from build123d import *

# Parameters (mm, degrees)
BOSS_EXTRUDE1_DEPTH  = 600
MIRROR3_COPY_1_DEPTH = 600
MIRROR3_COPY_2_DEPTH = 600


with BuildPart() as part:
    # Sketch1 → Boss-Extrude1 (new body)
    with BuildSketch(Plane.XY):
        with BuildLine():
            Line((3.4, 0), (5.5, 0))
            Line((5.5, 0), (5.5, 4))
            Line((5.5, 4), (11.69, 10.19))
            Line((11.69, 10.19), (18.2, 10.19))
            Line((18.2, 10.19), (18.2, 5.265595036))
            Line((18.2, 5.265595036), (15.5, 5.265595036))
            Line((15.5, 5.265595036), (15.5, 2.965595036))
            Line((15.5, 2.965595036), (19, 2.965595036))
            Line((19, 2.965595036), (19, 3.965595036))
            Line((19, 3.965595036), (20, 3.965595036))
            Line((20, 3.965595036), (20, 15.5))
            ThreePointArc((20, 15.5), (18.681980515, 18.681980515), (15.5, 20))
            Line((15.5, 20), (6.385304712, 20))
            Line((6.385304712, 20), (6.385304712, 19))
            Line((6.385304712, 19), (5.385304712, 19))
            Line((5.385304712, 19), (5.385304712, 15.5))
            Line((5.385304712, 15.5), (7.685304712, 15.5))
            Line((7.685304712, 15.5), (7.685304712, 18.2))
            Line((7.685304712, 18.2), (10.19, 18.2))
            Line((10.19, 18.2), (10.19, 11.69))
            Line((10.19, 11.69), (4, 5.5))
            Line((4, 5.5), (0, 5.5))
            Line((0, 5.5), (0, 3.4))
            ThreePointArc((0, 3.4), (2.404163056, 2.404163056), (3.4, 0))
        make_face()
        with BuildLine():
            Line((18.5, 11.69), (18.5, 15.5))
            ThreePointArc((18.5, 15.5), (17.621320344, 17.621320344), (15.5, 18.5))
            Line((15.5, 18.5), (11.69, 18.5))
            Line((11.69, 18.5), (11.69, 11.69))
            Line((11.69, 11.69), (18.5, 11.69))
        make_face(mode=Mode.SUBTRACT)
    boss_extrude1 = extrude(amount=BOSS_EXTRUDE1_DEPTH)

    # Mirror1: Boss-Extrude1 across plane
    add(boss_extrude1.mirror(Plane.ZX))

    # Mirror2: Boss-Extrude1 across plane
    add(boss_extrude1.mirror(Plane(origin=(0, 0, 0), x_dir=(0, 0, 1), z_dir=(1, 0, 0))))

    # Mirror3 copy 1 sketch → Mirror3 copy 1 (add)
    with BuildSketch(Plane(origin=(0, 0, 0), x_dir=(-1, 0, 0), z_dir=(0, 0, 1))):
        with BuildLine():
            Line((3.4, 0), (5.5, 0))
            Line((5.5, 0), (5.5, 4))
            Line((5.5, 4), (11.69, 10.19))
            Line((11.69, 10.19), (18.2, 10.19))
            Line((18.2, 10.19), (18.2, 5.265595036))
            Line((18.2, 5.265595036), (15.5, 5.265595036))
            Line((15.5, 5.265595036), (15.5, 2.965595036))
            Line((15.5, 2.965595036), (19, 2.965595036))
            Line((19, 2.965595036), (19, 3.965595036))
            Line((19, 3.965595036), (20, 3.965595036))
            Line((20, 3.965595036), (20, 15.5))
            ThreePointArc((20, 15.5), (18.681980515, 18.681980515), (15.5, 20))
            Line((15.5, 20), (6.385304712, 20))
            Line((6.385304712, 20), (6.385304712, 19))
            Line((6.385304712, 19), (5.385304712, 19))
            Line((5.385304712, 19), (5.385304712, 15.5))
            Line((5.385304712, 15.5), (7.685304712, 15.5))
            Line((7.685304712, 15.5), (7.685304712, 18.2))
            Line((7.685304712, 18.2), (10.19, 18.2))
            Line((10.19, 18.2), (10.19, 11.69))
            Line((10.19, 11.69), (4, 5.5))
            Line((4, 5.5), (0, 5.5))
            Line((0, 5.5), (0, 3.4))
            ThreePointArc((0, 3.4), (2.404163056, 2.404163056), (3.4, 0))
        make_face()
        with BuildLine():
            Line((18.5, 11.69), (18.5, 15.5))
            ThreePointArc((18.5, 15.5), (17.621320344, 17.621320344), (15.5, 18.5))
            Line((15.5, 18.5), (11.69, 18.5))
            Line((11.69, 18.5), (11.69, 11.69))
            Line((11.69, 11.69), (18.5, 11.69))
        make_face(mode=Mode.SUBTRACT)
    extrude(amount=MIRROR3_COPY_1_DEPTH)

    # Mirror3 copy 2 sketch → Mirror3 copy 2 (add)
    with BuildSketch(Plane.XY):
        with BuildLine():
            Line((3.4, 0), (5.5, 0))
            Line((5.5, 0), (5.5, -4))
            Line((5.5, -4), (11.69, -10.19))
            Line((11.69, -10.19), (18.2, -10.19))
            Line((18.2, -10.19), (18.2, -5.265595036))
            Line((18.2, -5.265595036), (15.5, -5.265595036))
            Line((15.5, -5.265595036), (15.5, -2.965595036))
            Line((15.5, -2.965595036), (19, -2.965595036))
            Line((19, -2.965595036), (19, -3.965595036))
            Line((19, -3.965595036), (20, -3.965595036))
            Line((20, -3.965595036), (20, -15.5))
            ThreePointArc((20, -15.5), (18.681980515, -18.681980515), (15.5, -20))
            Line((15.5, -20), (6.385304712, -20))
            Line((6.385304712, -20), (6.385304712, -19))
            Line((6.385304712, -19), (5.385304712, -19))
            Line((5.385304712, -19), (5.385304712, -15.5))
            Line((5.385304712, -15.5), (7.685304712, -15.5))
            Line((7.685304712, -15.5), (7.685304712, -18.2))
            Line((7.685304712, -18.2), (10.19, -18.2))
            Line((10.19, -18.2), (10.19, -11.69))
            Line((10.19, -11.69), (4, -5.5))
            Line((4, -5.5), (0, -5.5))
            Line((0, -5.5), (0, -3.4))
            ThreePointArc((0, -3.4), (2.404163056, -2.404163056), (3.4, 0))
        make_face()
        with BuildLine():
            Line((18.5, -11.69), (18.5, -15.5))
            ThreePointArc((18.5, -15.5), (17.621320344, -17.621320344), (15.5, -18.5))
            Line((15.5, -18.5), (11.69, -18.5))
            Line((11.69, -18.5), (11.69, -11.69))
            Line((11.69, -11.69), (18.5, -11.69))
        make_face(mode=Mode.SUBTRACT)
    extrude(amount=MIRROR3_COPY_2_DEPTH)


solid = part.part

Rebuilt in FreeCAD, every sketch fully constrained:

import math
import FreeCAD as App
import Part
import Sketcher

V = App.Vector
Q = App.Units.Quantity

doc = App.newDocument("Part")
body = doc.addObject("PartDesign::Body", "Body")

# Sketch on XY plane
sketch1 = body.newObject("Sketcher::SketchObject", "Sketch")
sketch1.AttachmentSupport = (doc.getObject("XY_Plane"), [""])
sketch1.MapMode = "FlatFace"
sketch1.addGeometry([
    Part.LineSegment(V(3.4, 0, 0), V(5.5, 0, 0)),  # 0
    Part.LineSegment(V(5.5, 0, 0), V(5.5, 4, 0)),  # 1
    Part.LineSegment(V(5.5, 4, 0), V(11.7, 10.2, 0)),  # 2
    Part.LineSegment(V(11.7, 10.2, 0), V(18.2, 10.2, 0)),  # 3
    Part.LineSegment(V(18.2, 10.2, 0), V(18.2, 5.3, 0)),  # 4
    Part.LineSegment(V(18.2, 5.3, 0), V(15.5, 5.3, 0)),  # 5
    Part.LineSegment(V(15.5, 5.3, 0), V(15.5, 3, 0)),  # 6
    Part.LineSegment(V(15.5, 3, 0), V(19, 3, 0)),  # 7
    Part.LineSegment(V(19, 3, 0), V(19, 4, 0)),  # 8
    Part.LineSegment(V(19, 4, 0), V(20, 4, 0)),  # 9
    Part.LineSegment(V(20, 4, 0), V(20, 15.5, 0)),  # 10
    Part.ArcOfCircle(Part.Circle(V(15.5, 15.5, 0), V(0, 0, 1), 4.5), math.radians(0), math.radians(90)),  # 11
    Part.LineSegment(V(15.5, 20, 0), V(6.4, 20, 0)),  # 12
    Part.LineSegment(V(6.4, 20, 0), V(6.4, 19, 0)),  # 13
    Part.LineSegment(V(6.4, 19, 0), V(5.4, 19, 0)),  # 14
    Part.LineSegment(V(5.4, 19, 0), V(5.4, 15.5, 0)),  # 15
    Part.LineSegment(V(5.4, 15.5, 0), V(7.7, 15.5, 0)),  # 16
    Part.LineSegment(V(7.7, 15.5, 0), V(7.7, 18.2, 0)),  # 17
    Part.LineSegment(V(7.7, 18.2, 0), V(10.2, 18.2, 0)),  # 18
    Part.LineSegment(V(10.2, 18.2, 0), V(10.2, 11.7, 0)),  # 19
    Part.LineSegment(V(10.2, 11.7, 0), V(4, 5.5, 0)),  # 20
    Part.LineSegment(V(4, 5.5, 0), V(0, 5.5, 0)),  # 21
    Part.LineSegment(V(0, 5.5, 0), V(0, 3.4, 0)),  # 22
    Part.ArcOfCircle(Part.Circle(V(0, 0, 0), V(0, 0, 1), 3.4), math.radians(0), math.radians(90)),  # 23
    Part.LineSegment(V(18.5, 15.5, 0), V(18.5, 11.7, 0)),  # 24
    Part.LineSegment(V(18.5, 11.7, 0), V(11.7, 11.7, 0)),  # 25
    Part.LineSegment(V(11.7, 11.7, 0), V(11.7, 18.5, 0)),  # 26
    Part.LineSegment(V(11.7, 18.5, 0), V(15.5, 18.5, 0)),  # 27
    Part.ArcOfCircle(Part.Circle(V(15.5, 15.5, 0), V(0, 0, 1), 3), math.radians(0), math.radians(90)),  # 28
], False)
sketch1.addConstraint([
    Sketcher.Constraint("Coincident", 0, 2, 1, 1),
    Sketcher.Constraint("Coincident", 1, 2, 2, 1),
    Sketcher.Constraint("Coincident", 2, 2, 3, 1),
    Sketcher.Constraint("Coincident", 3, 2, 4, 1),
    Sketcher.Constraint("Coincident", 4, 2, 5, 1),
    Sketcher.Constraint("Coincident", 5, 2, 6, 1),
    Sketcher.Constraint("Coincident", 6, 2, 7, 1),
    Sketcher.Constraint("Coincident", 7, 2, 8, 1),
    Sketcher.Constraint("Coincident", 8, 2, 9, 1),
    Sketcher.Constraint("Coincident", 9, 2, 10, 1),
    Sketcher.Constraint("Tangent", 10, 2, 11, 1),
    Sketcher.Constraint("Tangent", 11, 2, 12, 1),
    Sketcher.Constraint("Coincident", 12, 2, 13, 1),
    Sketcher.Constraint("Coincident", 13, 2, 14, 1),
    Sketcher.Constraint("Coincident", 14, 2, 15, 1),
    Sketcher.Constraint("Coincident", 15, 2, 16, 1),
    Sketcher.Constraint("Coincident", 16, 2, 17, 1),
    Sketcher.Constraint("Coincident", 17, 2, 18, 1),
    Sketcher.Constraint("Coincident", 18, 2, 19, 1),
    Sketcher.Constraint("Coincident", 19, 2, 20, 1),
    Sketcher.Constraint("Coincident", 20, 2, 21, 1),
    Sketcher.Constraint("Coincident", 21, 2, 22, 1),
    Sketcher.Constraint("Coincident", 22, 2, 23, 2),
    Sketcher.Constraint("Coincident", 23, 1, 0, 1),
    Sketcher.Constraint("Coincident", 24, 2, 25, 1),
    Sketcher.Constraint("Coincident", 25, 2, 26, 1),
    Sketcher.Constraint("Coincident", 26, 2, 27, 1),
    Sketcher.Constraint("Tangent", 27, 2, 28, 2),
    Sketcher.Constraint("Tangent", 28, 1, 24, 1),
    Sketcher.Constraint("Horizontal", 0),
    Sketcher.Constraint("Vertical", 1),
    Sketcher.Constraint("Horizontal", 3),
    Sketcher.Constraint("Vertical", 4),
    Sketcher.Constraint("Horizontal", 5),
    Sketcher.Constraint("Vertical", 6),
    Sketcher.Constraint("Horizontal", 7),
    Sketcher.Constraint("Vertical", 8),
    Sketcher.Constraint("Horizontal", 9),
    Sketcher.Constraint("Vertical", 10),
    Sketcher.Constraint("Horizontal", 12),
    Sketcher.Constraint("Vertical", 13),
    Sketcher.Constraint("Horizontal", 14),
    Sketcher.Constraint("Vertical", 15),
    Sketcher.Constraint("Horizontal", 16),
    Sketcher.Constraint("Vertical", 17),
    Sketcher.Constraint("Horizontal", 18),
    Sketcher.Constraint("Vertical", 19),
    Sketcher.Constraint("Horizontal", 21),
    Sketcher.Constraint("Vertical", 22),
    Sketcher.Constraint("Vertical", 24),
    Sketcher.Constraint("Horizontal", 25),
    Sketcher.Constraint("Vertical", 26),
    Sketcher.Constraint("Horizontal", 27),
    Sketcher.Constraint("Coincident", 23, 3, -1, 1),
    Sketcher.Constraint("Coincident", 28, 3, 11, 3),
    Sketcher.Constraint("PointOnObject", 0, 2, -1),
    Sketcher.Constraint("PointOnObject", 21, 2, -2),
    Sketcher.Constraint("Parallel", 2, 20),
    Sketcher.Constraint("Horizontal", 10, 2, 15, 2),
    Sketcher.Constraint("Horizontal", 19, 2, 24, 2),
    Sketcher.Constraint("Vertical", 28, 3, 5, 2),
    Sketcher.Constraint("Vertical", 2, 2, 25, 2),
    Sketcher.Constraint("Equal", 9, 14),
    Sketcher.Constraint("Equal", 21, 1),
    Sketcher.Constraint("Equal", 16, 6),
    Sketcher.Constraint("Equal", 14, 8),
    Sketcher.Constraint("Equal", 8, 13),
    Sketcher.Constraint("Equal", 5, 17),
    Sketcher.Constraint("Equal", 3, 19),
    Sketcher.Constraint("Equal", 0, 22),
    Sketcher.Constraint("Equal", 2, 20),
    Sketcher.Constraint("Radius", 28, Q("3 mm")),
    Sketcher.Constraint("Radius", 11, Q("4.5 mm")),
    Sketcher.Constraint("Radius", 23, Q("3.4 mm")),
    Sketcher.Constraint("DistanceX", 9, 1, 9, 2, Q("1 mm")),
    Sketcher.Constraint("DistanceX", 21, 2, 21, 1, Q("4 mm")),
    Sketcher.Constraint("Angle", 2, Q("45 deg")),
    Sketcher.Constraint("DistanceX", 0, 1, 0, 2, Q("2.1 mm")),
    Sketcher.Constraint("DistanceX", 5, 2, 5, 1, Q("2.7 mm")),
    Sketcher.Constraint("DistanceX", 16, 1, 16, 2, Q("2.3 mm")),
    Sketcher.Constraint("DistanceX", -1, 1, 7, 2, Q("19 mm")),
    Sketcher.Constraint("DistanceX", 3, 1, 3, 2, Q("6.51 mm")),
    Sketcher.Constraint("DistanceX", 12, 2, 12, 1, Q("9.114695 mm")),
    Sketcher.Constraint("DistanceY", 4, 2, 4, 1, Q("4.924405 mm")),
])
pad1 = body.newObject("PartDesign::Pad", "Pad")
pad1.Profile = sketch1
pad1.Length = 600
doc.recompute()

mirrored = body.newObject("PartDesign::Mirrored", "Mirrored")
mirrored.Originals = [pad1]
mirrored.MirrorPlane = (doc.getObject("XZ_Plane"), [""])
body.Tip = mirrored
doc.recompute()

mirrored2 = body.newObject("PartDesign::Mirrored", "Mirrored001")
mirrored2.Originals = [pad1]
mirrored2.MirrorPlane = (doc.getObject("YZ_Plane"), [""])
body.Tip = mirrored2

# Sketch on XY plane
sketch2 = body.newObject("Sketcher::SketchObject", "Sketch001")
sketch2.AttachmentSupport = (doc.getObject("XY_Plane"), [""])
sketch2.MapMode = "FlatFace"
sketch2.addGeometry([
    Part.LineSegment(V(-3.4, 0, 0), V(-5.5, 0, 0)),  # 0
    Part.LineSegment(V(-5.5, 0, 0), V(-5.5, -4, 0)),  # 1
    Part.LineSegment(V(-5.5, -4, 0), V(-11.7, -10.2, 0)),  # 2
    Part.LineSegment(V(-11.7, -10.2, 0), V(-18.2, -10.2, 0)),  # 3
    Part.LineSegment(V(-18.2, -10.2, 0), V(-18.2, -5.3, 0)),  # 4
    Part.LineSegment(V(-18.2, -5.3, 0), V(-15.5, -5.3, 0)),  # 5
    Part.LineSegment(V(-15.5, -5.3, 0), V(-15.5, -3, 0)),  # 6
    Part.LineSegment(V(-15.5, -3, 0), V(-19, -3, 0)),  # 7
    Part.LineSegment(V(-19, -3, 0), V(-19, -4, 0)),  # 8
    Part.LineSegment(V(-19, -4, 0), V(-20, -4, 0)),  # 9
    Part.LineSegment(V(-20, -4, 0), V(-20, -15.5, 0)),  # 10
    Part.ArcOfCircle(Part.Circle(V(-15.5, -15.5, 0), V(0, 0, 1), 4.5), math.radians(-180), math.radians(-90)),  # 11
    Part.LineSegment(V(-15.5, -20, 0), V(-6.4, -20, 0)),  # 12
    Part.LineSegment(V(-6.4, -20, 0), V(-6.4, -19, 0)),  # 13
    Part.LineSegment(V(-6.4, -19, 0), V(-5.4, -19, 0)),  # 14
    Part.LineSegment(V(-5.4, -19, 0), V(-5.4, -15.5, 0)),  # 15
    Part.LineSegment(V(-5.4, -15.5, 0), V(-7.7, -15.5, 0)),  # 16
    Part.LineSegment(V(-7.7, -15.5, 0), V(-7.7, -18.2, 0)),  # 17
    Part.LineSegment(V(-7.7, -18.2, 0), V(-10.2, -18.2, 0)),  # 18
    Part.LineSegment(V(-10.2, -18.2, 0), V(-10.2, -11.7, 0)),  # 19
    Part.LineSegment(V(-10.2, -11.7, 0), V(-4, -5.5, 0)),  # 20
    Part.LineSegment(V(-4, -5.5, 0), V(0, -5.5, 0)),  # 21
    Part.LineSegment(V(0, -5.5, 0), V(0, -3.4, 0)),  # 22
    Part.ArcOfCircle(Part.Circle(V(0, 0, 0), V(0, 0, 1), 3.4), math.radians(180), math.radians(270)),  # 23
    Part.LineSegment(V(-18.5, -15.5, 0), V(-18.5, -11.7, 0)),  # 24
    Part.LineSegment(V(-18.5, -11.7, 0), V(-11.7, -11.7, 0)),  # 25
    Part.LineSegment(V(-11.7, -11.7, 0), V(-11.7, -18.5, 0)),  # 26
    Part.LineSegment(V(-11.7, -18.5, 0), V(-15.5, -18.5, 0)),  # 27
    Part.ArcOfCircle(Part.Circle(V(-15.5, -15.5, 0), V(0, 0, 1), 3), math.radians(180), math.radians(270)),  # 28
], False)
sketch2.addConstraint([
    Sketcher.Constraint("Coincident", 0, 2, 1, 1),
    Sketcher.Constraint("Coincident", 1, 2, 2, 1),
    Sketcher.Constraint("Coincident", 2, 2, 3, 1),
    Sketcher.Constraint("Coincident", 3, 2, 4, 1),
    Sketcher.Constraint("Coincident", 4, 2, 5, 1),
    Sketcher.Constraint("Coincident", 5, 2, 6, 1),
    Sketcher.Constraint("Coincident", 6, 2, 7, 1),
    Sketcher.Constraint("Coincident", 7, 2, 8, 1),
    Sketcher.Constraint("Coincident", 8, 2, 9, 1),
    Sketcher.Constraint("Coincident", 9, 2, 10, 1),
    Sketcher.Constraint("Tangent", 10, 2, 11, 1),
    Sketcher.Constraint("Tangent", 11, 2, 12, 1),
    Sketcher.Constraint("Coincident", 12, 2, 13, 1),
    Sketcher.Constraint("Coincident", 13, 2, 14, 1),
    Sketcher.Constraint("Coincident", 14, 2, 15, 1),
    Sketcher.Constraint("Coincident", 15, 2, 16, 1),
    Sketcher.Constraint("Coincident", 16, 2, 17, 1),
    Sketcher.Constraint("Coincident", 17, 2, 18, 1),
    Sketcher.Constraint("Coincident", 18, 2, 19, 1),
    Sketcher.Constraint("Coincident", 19, 2, 20, 1),
    Sketcher.Constraint("Coincident", 20, 2, 21, 1),
    Sketcher.Constraint("Coincident", 21, 2, 22, 1),
    Sketcher.Constraint("Coincident", 22, 2, 23, 2),
    Sketcher.Constraint("Coincident", 23, 1, 0, 1),
    Sketcher.Constraint("Coincident", 24, 2, 25, 1),
    Sketcher.Constraint("Coincident", 25, 2, 26, 1),
    Sketcher.Constraint("Coincident", 26, 2, 27, 1),
    Sketcher.Constraint("Tangent", 27, 2, 28, 2),
    Sketcher.Constraint("Tangent", 28, 1, 24, 1),
    Sketcher.Constraint("Horizontal", 0),
    Sketcher.Constraint("Vertical", 1),
    Sketcher.Constraint("Horizontal", 3),
    Sketcher.Constraint("Vertical", 4),
    Sketcher.Constraint("Horizontal", 5),
    Sketcher.Constraint("Vertical", 6),
    Sketcher.Constraint("Horizontal", 7),
    Sketcher.Constraint("Vertical", 8),
    Sketcher.Constraint("Horizontal", 9),
    Sketcher.Constraint("Vertical", 10),
    Sketcher.Constraint("Horizontal", 12),
    Sketcher.Constraint("Vertical", 13),
    Sketcher.Constraint("Horizontal", 14),
    Sketcher.Constraint("Vertical", 15),
    Sketcher.Constraint("Horizontal", 16),
    Sketcher.Constraint("Vertical", 17),
    Sketcher.Constraint("Horizontal", 18),
    Sketcher.Constraint("Vertical", 19),
    Sketcher.Constraint("Horizontal", 21),
    Sketcher.Constraint("Vertical", 22),
    Sketcher.Constraint("Vertical", 24),
    Sketcher.Constraint("Horizontal", 25),
    Sketcher.Constraint("Vertical", 26),
    Sketcher.Constraint("Horizontal", 27),
    Sketcher.Constraint("Coincident", 23, 3, -1, 1),
    Sketcher.Constraint("Coincident", 28, 3, 11, 3),
    Sketcher.Constraint("PointOnObject", 0, 2, -1),
    Sketcher.Constraint("PointOnObject", 21, 2, -2),
    Sketcher.Constraint("Parallel", 2, 20),
    Sketcher.Constraint("Horizontal", 10, 2, 15, 2),
    Sketcher.Constraint("Horizontal", 19, 2, 24, 2),
    Sketcher.Constraint("Vertical", 28, 3, 5, 2),
    Sketcher.Constraint("Vertical", 2, 2, 25, 2),
    Sketcher.Constraint("Equal", 9, 14),
    Sketcher.Constraint("Equal", 21, 1),
    Sketcher.Constraint("Equal", 16, 6),
    Sketcher.Constraint("Equal", 14, 8),
    Sketcher.Constraint("Equal", 8, 13),
    Sketcher.Constraint("Equal", 5, 17),
    Sketcher.Constraint("Equal", 3, 19),
    Sketcher.Constraint("Equal", 0, 22),
    Sketcher.Constraint("Equal", 2, 20),
    Sketcher.Constraint("Radius", 28, Q("3 mm")),
    Sketcher.Constraint("Radius", 11, Q("4.5 mm")),
    Sketcher.Constraint("Radius", 23, Q("3.4 mm")),
    Sketcher.Constraint("DistanceX", 9, 2, 9, 1, Q("1 mm")),
    Sketcher.Constraint("DistanceX", 21, 1, 21, 2, Q("4 mm")),
    Sketcher.Constraint("Angle", 2, Q("-135 deg")),
    Sketcher.Constraint("DistanceX", 0, 2, 0, 1, Q("2.1 mm")),
    Sketcher.Constraint("DistanceX", 5, 1, 5, 2, Q("2.7 mm")),
    Sketcher.Constraint("DistanceX", 16, 2, 16, 1, Q("2.3 mm")),
    Sketcher.Constraint("DistanceX", 7, 2, -1, 1, Q("19 mm")),
    Sketcher.Constraint("DistanceX", 3, 2, 3, 1, Q("6.51 mm")),
    Sketcher.Constraint("DistanceX", 12, 1, 12, 2, Q("9.114695 mm")),
    Sketcher.Constraint("DistanceY", 4, 1, 4, 2, Q("4.924405 mm")),
])
pad2 = body.newObject("PartDesign::Pad", "Pad001")
pad2.Profile = sketch2
pad2.Length = 600

# Sketch on XY plane
sketch3 = body.newObject("Sketcher::SketchObject", "Sketch002")
sketch3.AttachmentSupport = (doc.getObject("XY_Plane"), [""])
sketch3.MapMode = "FlatFace"
sketch3.addGeometry([
    Part.LineSegment(V(5.5, 0, 0), V(3.4, 0, 0)),  # 0
    Part.ArcOfCircle(Part.Circle(V(0, 0, 0), V(0, 0, 1), 3.4), math.radians(-90), math.radians(0)),  # 1
    Part.LineSegment(V(0, -3.4, 0), V(0, -5.5, 0)),  # 2
    Part.LineSegment(V(0, -5.5, 0), V(4, -5.5, 0)),  # 3
    Part.LineSegment(V(4, -5.5, 0), V(10.2, -11.7, 0)),  # 4
    Part.LineSegment(V(10.2, -11.7, 0), V(10.2, -18.2, 0)),  # 5
    Part.LineSegment(V(10.2, -18.2, 0), V(7.7, -18.2, 0)),  # 6
    Part.LineSegment(V(7.7, -18.2, 0), V(7.7, -15.5, 0)),  # 7
    Part.LineSegment(V(7.7, -15.5, 0), V(5.4, -15.5, 0)),  # 8
    Part.LineSegment(V(5.4, -15.5, 0), V(5.4, -19, 0)),  # 9
    Part.LineSegment(V(5.4, -19, 0), V(6.4, -19, 0)),  # 10
    Part.LineSegment(V(6.4, -19, 0), V(6.4, -20, 0)),  # 11
    Part.LineSegment(V(6.4, -20, 0), V(15.5, -20, 0)),  # 12
    Part.ArcOfCircle(Part.Circle(V(15.5, -15.5, 0), V(0, 0, 1), 4.5), math.radians(-90), math.radians(0)),  # 13
    Part.LineSegment(V(20, -15.5, 0), V(20, -4, 0)),  # 14
    Part.LineSegment(V(20, -4, 0), V(19, -4, 0)),  # 15
    Part.LineSegment(V(19, -4, 0), V(19, -3, 0)),  # 16
    Part.LineSegment(V(19, -3, 0), V(15.5, -3, 0)),  # 17
    Part.LineSegment(V(15.5, -3, 0), V(15.5, -5.3, 0)),  # 18
    Part.LineSegment(V(15.5, -5.3, 0), V(18.2, -5.3, 0)),  # 19
    Part.LineSegment(V(18.2, -5.3, 0), V(18.2, -10.2, 0)),  # 20
    Part.LineSegment(V(18.2, -10.2, 0), V(11.7, -10.2, 0)),  # 21
    Part.LineSegment(V(11.7, -10.2, 0), V(5.5, -4, 0)),  # 22
    Part.LineSegment(V(5.5, -4, 0), V(5.5, 0, 0)),  # 23
    Part.LineSegment(V(18.5, -11.7, 0), V(18.5, -15.5, 0)),  # 24
    Part.ArcOfCircle(Part.Circle(V(15.5, -15.5, 0), V(0, 0, 1), 3), math.radians(-90), math.radians(0)),  # 25
    Part.LineSegment(V(15.5, -18.5, 0), V(11.7, -18.5, 0)),  # 26
    Part.LineSegment(V(11.7, -18.5, 0), V(11.7, -11.7, 0)),  # 27
    Part.LineSegment(V(11.7, -11.7, 0), V(18.5, -11.7, 0)),  # 28
], False)
sketch3.addConstraint([
    Sketcher.Constraint("Coincident", 0, 2, 1, 2),
    Sketcher.Constraint("Coincident", 1, 1, 2, 1),
    Sketcher.Constraint("Coincident", 2, 2, 3, 1),
    Sketcher.Constraint("Coincident", 3, 2, 4, 1),
    Sketcher.Constraint("Coincident", 4, 2, 5, 1),
    Sketcher.Constraint("Coincident", 5, 2, 6, 1),
    Sketcher.Constraint("Coincident", 6, 2, 7, 1),
    Sketcher.Constraint("Coincident", 7, 2, 8, 1),
    Sketcher.Constraint("Coincident", 8, 2, 9, 1),
    Sketcher.Constraint("Coincident", 9, 2, 10, 1),
    Sketcher.Constraint("Coincident", 10, 2, 11, 1),
    Sketcher.Constraint("Coincident", 11, 2, 12, 1),
    Sketcher.Constraint("Tangent", 12, 2, 13, 1),
    Sketcher.Constraint("Tangent", 13, 2, 14, 1),
    Sketcher.Constraint("Coincident", 14, 2, 15, 1),
    Sketcher.Constraint("Coincident", 15, 2, 16, 1),
    Sketcher.Constraint("Coincident", 16, 2, 17, 1),
    Sketcher.Constraint("Coincident", 17, 2, 18, 1),
    Sketcher.Constraint("Coincident", 18, 2, 19, 1),
    Sketcher.Constraint("Coincident", 19, 2, 20, 1),
    Sketcher.Constraint("Coincident", 20, 2, 21, 1),
    Sketcher.Constraint("Coincident", 21, 2, 22, 1),
    Sketcher.Constraint("Coincident", 22, 2, 23, 1),
    Sketcher.Constraint("Coincident", 23, 2, 0, 1),
    Sketcher.Constraint("Tangent", 24, 2, 25, 2),
    Sketcher.Constraint("Tangent", 25, 1, 26, 1),
    Sketcher.Constraint("Coincident", 26, 2, 27, 1),
    Sketcher.Constraint("Coincident", 27, 2, 28, 1),
    Sketcher.Constraint("Coincident", 28, 2, 24, 1),
    Sketcher.Constraint("Horizontal", 0),
    Sketcher.Constraint("Vertical", 2),
    Sketcher.Constraint("Horizontal", 3),
    Sketcher.Constraint("Vertical", 5),
    Sketcher.Constraint("Horizontal", 6),
    Sketcher.Constraint("Vertical", 7),
    Sketcher.Constraint("Horizontal", 8),
    Sketcher.Constraint("Vertical", 9),
    Sketcher.Constraint("Horizontal", 10),
    Sketcher.Constraint("Vertical", 11),
    Sketcher.Constraint("Horizontal", 12),
    Sketcher.Constraint("Vertical", 14),
    Sketcher.Constraint("Horizontal", 15),
    Sketcher.Constraint("Vertical", 16),
    Sketcher.Constraint("Horizontal", 17),
    Sketcher.Constraint("Vertical", 18),
    Sketcher.Constraint("Horizontal", 19),
    Sketcher.Constraint("Vertical", 20),
    Sketcher.Constraint("Horizontal", 21),
    Sketcher.Constraint("Vertical", 23),
    Sketcher.Constraint("Vertical", 24),
    Sketcher.Constraint("Horizontal", 26),
    Sketcher.Constraint("Vertical", 27),
    Sketcher.Constraint("Horizontal", 28),
    Sketcher.Constraint("Coincident", 1, 3, -1, 1),
    Sketcher.Constraint("Coincident", 25, 3, 13, 3),
    Sketcher.Constraint("PointOnObject", 0, 2, -1),
    Sketcher.Constraint("PointOnObject", 1, 1, -2),
    Sketcher.Constraint("Parallel", 4, 22),
    Sketcher.Constraint("Horizontal", 25, 3, 7, 2),
    Sketcher.Constraint("Horizontal", 4, 2, 27, 2),
    Sketcher.Constraint("Vertical", 12, 2, 17, 2),
    Sketcher.Constraint("Vertical", 21, 2, 26, 2),
    Sketcher.Constraint("Equal", 10, 15),
    Sketcher.Constraint("Equal", 0, 2),
    Sketcher.Constraint("Equal", 21, 5),
    Sketcher.Constraint("Equal", 19, 7),
    Sketcher.Constraint("Equal", 17, 9),
    Sketcher.Constraint("Equal", 11, 16),
    Sketcher.Constraint("Equal", 8, 18),
    Sketcher.Constraint("Equal", 3, 23),
    Sketcher.Constraint("Equal", 4, 22),
    Sketcher.Constraint("Radius", 25, Q("3 mm")),
    Sketcher.Constraint("Radius", 1, Q("3.4 mm")),
    Sketcher.Constraint("Radius", 13, Q("4.5 mm")),
    Sketcher.Constraint("DistanceX", 3, 1, 3, 2, Q("4 mm")),
    Sketcher.Constraint("DistanceX", 10, 1, 10, 2, Q("1 mm")),
    Sketcher.Constraint("Angle", 4, Q("-45 deg")),
    Sketcher.Constraint("DistanceX", 0, 2, 0, 1, Q("2.1 mm")),
    Sketcher.Constraint("DistanceX", 8, 2, 8, 1, Q("2.3 mm")),
    Sketcher.Constraint("DistanceX", 19, 1, 19, 2, Q("2.7 mm")),
    Sketcher.Constraint("DistanceY", 9, 2, -1, 1, Q("19 mm")),
    Sketcher.Constraint("DistanceX", 21, 2, 21, 1, Q("6.51 mm")),
    Sketcher.Constraint("DistanceX", 6, 2, 6, 1, Q("2.504695 mm")),
    Sketcher.Constraint("DistanceY", 14, 1, 14, 2, Q("11.534405 mm")),
])
pad3 = body.newObject("PartDesign::Pad", "Pad002")
pad3.Profile = sketch3
pad3.Length = 600

doc.recompute()
